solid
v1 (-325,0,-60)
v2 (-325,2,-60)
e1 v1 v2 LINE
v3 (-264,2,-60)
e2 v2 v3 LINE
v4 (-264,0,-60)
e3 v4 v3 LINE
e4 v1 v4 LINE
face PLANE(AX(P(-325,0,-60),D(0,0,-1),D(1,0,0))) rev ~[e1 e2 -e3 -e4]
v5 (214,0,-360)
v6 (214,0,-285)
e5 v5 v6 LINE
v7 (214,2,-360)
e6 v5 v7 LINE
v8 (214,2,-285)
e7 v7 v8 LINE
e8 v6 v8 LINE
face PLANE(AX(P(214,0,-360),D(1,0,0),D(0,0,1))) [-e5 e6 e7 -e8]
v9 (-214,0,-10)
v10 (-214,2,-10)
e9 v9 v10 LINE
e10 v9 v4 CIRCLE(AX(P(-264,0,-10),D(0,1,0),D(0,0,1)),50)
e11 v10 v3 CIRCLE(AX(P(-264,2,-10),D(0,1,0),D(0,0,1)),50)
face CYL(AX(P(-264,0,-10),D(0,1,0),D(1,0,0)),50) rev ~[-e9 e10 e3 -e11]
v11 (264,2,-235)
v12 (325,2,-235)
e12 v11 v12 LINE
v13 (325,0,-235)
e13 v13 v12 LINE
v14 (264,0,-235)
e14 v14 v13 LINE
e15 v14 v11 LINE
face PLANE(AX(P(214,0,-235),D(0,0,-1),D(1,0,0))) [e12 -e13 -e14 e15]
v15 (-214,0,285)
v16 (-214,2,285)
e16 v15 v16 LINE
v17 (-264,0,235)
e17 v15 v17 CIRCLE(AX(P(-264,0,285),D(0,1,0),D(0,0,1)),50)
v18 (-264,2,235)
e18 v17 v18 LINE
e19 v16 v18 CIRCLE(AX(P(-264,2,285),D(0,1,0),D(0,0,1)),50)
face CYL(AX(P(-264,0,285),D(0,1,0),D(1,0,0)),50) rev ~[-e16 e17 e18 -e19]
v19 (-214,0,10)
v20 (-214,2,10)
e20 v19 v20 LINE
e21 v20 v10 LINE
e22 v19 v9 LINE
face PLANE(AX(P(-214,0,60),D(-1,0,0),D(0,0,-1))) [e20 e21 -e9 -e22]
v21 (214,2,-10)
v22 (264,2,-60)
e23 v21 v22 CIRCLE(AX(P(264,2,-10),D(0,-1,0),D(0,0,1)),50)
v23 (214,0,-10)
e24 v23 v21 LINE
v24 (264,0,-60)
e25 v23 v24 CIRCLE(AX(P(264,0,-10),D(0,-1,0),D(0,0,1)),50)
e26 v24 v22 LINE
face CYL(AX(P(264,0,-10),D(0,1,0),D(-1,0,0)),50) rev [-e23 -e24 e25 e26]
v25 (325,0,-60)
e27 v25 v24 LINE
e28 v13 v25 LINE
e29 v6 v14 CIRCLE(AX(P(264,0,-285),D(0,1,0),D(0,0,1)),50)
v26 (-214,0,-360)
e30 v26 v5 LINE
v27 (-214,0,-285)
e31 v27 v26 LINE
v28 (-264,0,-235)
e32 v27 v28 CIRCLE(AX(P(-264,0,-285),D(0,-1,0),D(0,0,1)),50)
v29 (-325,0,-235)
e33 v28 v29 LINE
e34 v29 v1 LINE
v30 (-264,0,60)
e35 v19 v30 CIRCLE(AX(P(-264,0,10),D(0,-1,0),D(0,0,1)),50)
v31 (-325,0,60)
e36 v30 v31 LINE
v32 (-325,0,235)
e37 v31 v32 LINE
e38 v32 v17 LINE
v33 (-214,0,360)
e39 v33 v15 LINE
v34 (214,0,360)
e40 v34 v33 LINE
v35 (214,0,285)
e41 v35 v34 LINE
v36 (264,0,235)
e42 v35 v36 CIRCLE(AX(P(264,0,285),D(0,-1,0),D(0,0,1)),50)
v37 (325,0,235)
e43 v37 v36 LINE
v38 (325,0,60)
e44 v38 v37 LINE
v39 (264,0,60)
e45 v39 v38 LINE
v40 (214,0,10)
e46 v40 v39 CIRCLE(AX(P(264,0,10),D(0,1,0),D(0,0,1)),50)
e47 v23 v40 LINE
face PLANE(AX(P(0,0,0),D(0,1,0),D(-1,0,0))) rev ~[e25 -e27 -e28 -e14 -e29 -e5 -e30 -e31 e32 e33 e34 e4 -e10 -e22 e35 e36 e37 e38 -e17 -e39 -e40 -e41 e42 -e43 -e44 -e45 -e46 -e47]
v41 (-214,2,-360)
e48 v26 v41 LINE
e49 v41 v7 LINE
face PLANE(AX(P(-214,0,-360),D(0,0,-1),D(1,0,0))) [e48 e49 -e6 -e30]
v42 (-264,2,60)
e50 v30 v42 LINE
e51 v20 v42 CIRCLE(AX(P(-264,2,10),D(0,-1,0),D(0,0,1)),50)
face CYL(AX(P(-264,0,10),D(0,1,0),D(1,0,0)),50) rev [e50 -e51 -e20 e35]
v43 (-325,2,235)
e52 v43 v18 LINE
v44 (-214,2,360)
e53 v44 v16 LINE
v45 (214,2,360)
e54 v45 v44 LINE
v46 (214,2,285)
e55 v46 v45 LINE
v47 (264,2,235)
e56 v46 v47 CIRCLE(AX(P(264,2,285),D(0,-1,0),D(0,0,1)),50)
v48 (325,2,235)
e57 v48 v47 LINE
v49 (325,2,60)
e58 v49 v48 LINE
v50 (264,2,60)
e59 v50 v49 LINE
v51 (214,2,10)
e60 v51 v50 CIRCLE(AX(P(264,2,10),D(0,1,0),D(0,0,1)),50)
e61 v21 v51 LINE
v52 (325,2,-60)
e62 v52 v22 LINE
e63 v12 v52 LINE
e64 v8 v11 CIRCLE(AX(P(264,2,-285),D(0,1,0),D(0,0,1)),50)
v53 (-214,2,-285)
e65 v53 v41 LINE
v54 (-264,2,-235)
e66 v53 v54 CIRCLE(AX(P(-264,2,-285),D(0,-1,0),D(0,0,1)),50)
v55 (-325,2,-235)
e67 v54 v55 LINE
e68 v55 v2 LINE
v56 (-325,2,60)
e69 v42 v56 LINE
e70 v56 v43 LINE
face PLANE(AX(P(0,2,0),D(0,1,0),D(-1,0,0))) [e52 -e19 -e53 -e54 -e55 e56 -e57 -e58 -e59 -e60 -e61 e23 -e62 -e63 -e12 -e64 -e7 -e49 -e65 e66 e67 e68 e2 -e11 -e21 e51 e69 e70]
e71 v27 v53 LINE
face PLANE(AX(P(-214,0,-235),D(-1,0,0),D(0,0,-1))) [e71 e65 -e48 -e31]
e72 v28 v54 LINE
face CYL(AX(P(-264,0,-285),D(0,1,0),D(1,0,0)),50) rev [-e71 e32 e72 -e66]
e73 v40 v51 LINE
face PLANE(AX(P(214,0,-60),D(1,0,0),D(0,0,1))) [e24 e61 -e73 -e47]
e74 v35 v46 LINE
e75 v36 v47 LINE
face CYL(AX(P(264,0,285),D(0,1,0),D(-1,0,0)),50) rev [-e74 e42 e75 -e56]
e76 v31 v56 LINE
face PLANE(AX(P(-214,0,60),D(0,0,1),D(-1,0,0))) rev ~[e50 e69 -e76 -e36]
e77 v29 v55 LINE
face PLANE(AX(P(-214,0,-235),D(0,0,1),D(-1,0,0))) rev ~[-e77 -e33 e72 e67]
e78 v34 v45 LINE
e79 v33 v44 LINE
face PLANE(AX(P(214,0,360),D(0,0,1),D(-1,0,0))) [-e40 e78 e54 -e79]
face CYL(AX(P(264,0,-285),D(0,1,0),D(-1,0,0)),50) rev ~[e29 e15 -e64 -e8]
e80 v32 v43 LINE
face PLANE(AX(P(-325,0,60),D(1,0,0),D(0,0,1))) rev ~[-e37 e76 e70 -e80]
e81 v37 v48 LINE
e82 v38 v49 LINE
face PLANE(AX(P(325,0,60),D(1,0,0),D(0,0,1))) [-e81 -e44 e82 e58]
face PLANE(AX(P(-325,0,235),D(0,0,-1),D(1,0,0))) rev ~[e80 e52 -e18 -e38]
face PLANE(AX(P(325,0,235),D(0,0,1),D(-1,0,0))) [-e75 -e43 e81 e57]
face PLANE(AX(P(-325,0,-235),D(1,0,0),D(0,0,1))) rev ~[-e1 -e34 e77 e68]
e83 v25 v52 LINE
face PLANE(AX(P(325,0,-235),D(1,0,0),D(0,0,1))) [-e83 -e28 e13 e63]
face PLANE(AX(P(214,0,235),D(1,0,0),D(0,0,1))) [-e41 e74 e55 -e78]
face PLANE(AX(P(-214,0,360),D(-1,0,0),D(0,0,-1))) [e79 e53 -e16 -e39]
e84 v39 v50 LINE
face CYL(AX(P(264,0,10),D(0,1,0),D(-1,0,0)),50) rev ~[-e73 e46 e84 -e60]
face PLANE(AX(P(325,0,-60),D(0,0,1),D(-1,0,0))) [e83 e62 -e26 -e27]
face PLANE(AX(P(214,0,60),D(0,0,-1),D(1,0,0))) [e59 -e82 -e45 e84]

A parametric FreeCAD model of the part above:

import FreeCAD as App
import Part
import Sketcher
from FreeCAD import Vector


def edges_at(feature, points):
    """Names of the edges that pass closest to the given points."""
    edges = feature.Shape.Edges
    near = lambda p: min(range(len(edges)), key=lambda i: edges[i].distToShape(Part.Vertex(*p))[0])
    return sorted({f"Edge{near(p) + 1}" for p in points})

doc = App.newDocument("Part")
body = doc.addObject("PartDesign::Body", "Body")

# Sketch on XZ plane
sketch1 = body.newObject("Sketcher::SketchObject", "Sketch")
sketch1.AttachmentSupport = (doc.getObject("XZ_Plane"), [""])
sketch1.MapMode = "FlatFace"
sketch1.addGeometry([
    Part.LineSegment(Vector(-214, 360, 0), Vector(214, 360, 0)),  # 0
    Part.LineSegment(Vector(214, 360, 0), Vector(214, 235, 0)),  # 1
    Part.LineSegment(Vector(214, 235, 0), Vector(325, 235, 0)),  # 2
    Part.LineSegment(Vector(325, 235, 0), Vector(325, 60, 0)),  # 3
    Part.LineSegment(Vector(325, 60, 0), Vector(214, 60, 0)),  # 4
    Part.LineSegment(Vector(214, 60, 0), Vector(214, -60, 0)),  # 5
    Part.LineSegment(Vector(214, -60, 0), Vector(325, -60, 0)),  # 6
    Part.LineSegment(Vector(325, -60, 0), Vector(325, -235, 0)),  # 7
    Part.LineSegment(Vector(325, -235, 0), Vector(214, -235, 0)),  # 8
    Part.LineSegment(Vector(214, -235, 0), Vector(214, -360, 0)),  # 9
    Part.LineSegment(Vector(214, -360, 0), Vector(-214, -360, 0)),  # 10
    Part.LineSegment(Vector(-214, -360, 0), Vector(-214, -235, 0)),  # 11
    Part.LineSegment(Vector(-214, -235, 0), Vector(-325, -235, 0)),  # 12
    Part.LineSegment(Vector(-325, -235, 0), Vector(-325, -60, 0)),  # 13
    Part.LineSegment(Vector(-325, -60, 0), Vector(-214, -60, 0)),  # 14
    Part.LineSegment(Vector(-214, -60, 0), Vector(-214, 60, 0)),  # 15
    Part.LineSegment(Vector(-214, 60, 0), Vector(-325, 60, 0)),  # 16
    Part.LineSegment(Vector(-325, 60, 0), Vector(-325, 235, 0)),  # 17
    Part.LineSegment(Vector(-325, 235, 0), Vector(-214, 235, 0)),  # 18
    Part.LineSegment(Vector(-214, 235, 0), Vector(-214, 360, 0)),  # 19
], False)
sketch1.addConstraint([
    Sketcher.Constraint("Coincident", 0, 2, 1, 1),
    Sketcher.Constraint("Coincident", 1, 2, 2, 1),
    Sketcher.Constraint("Coincident", 2, 2, 3, 1),
    Sketcher.Constraint("Coincident", 3, 2, 4, 1),
    Sketcher.Constraint("Coincident", 4, 2, 5, 1),
    Sketcher.Constraint("Coincident", 5, 2, 6, 1),
    Sketcher.Constraint("Coincident", 6, 2, 7, 1),
    Sketcher.Constraint("Coincident", 7, 2, 8, 1),
    Sketcher.Constraint("Coincident", 8, 2, 9, 1),
    Sketcher.Constraint("Coincident", 9, 2, 10, 1),
    Sketcher.Constraint("Coincident", 10, 2, 11, 1),
    Sketcher.Constraint("Coincident", 11, 2, 12, 1),
    Sketcher.Constraint("Coincident", 12, 2, 13, 1),
    Sketcher.Constraint("Coincident", 13, 2, 14, 1),
    Sketcher.Constraint("Coincident", 14, 2, 15, 1),
    Sketcher.Constraint("Coincident", 15, 2, 16, 1),
    Sketcher.Constraint("Coincident", 16, 2, 17, 1),
    Sketcher.Constraint("Coincident", 17, 2, 18, 1),
    Sketcher.Constraint("Coincident", 18, 2, 19, 1),
    Sketcher.Constraint("Coincident", 19, 2, 0, 1),
    Sketcher.Constraint("Horizontal", 0),
    Sketcher.Constraint("Vertical", 1),
    Sketcher.Constraint("Horizontal", 2),
    Sketcher.Constraint("Vertical", 3),
    Sketcher.Constraint("Horizontal", 4),
    Sketcher.Constraint("Vertical", 5),
    Sketcher.Constraint("Horizontal", 6),
    Sketcher.Constraint("Vertical", 7),
    Sketcher.Constraint("Horizontal", 8),
    Sketcher.Constraint("Vertical", 9),
    Sketcher.Constraint("Horizontal", 10),
    Sketcher.Constraint("Vertical", 11),
    Sketcher.Constraint("Horizontal", 12),
    Sketcher.Constraint("Vertical", 13),
    Sketcher.Constraint("Horizontal", 14),
    Sketcher.Constraint("Vertical", 15),
    Sketcher.Constraint("Horizontal", 16),
    Sketcher.Constraint("Vertical", 17),
    Sketcher.Constraint("Horizontal", 18),
    Sketcher.Constraint("Vertical", 19),
    Sketcher.Constraint("Symmetric", 0, 2, 10, 2, -1, 1),
    Sketcher.Constraint("Symmetric", 2, 2, 12, 2, -1, 1),
    Sketcher.Constraint("Symmetric", 4, 2, 14, 2, -1, 1),
    Sketcher.Constraint("Symmetric", 6, 2, 16, 2, -1, 1),
    Sketcher.Constraint("Symmetric", 8, 2, 18, 2, -1, 1),
    Sketcher.Constraint("Symmetric", 8, 2, 11, 2, -2),
    Sketcher.Constraint("Symmetric", 6, 2, 13, 2, -2),
    Sketcher.Constraint("Vertical", 1, 2, 4, 2),
    Sketcher.Constraint("DistanceX", 0, 1, 0, 2, 428.0),
    Sketcher.Constraint("DistanceX", 2, 1, 2, 2, 111.0),
    Sketcher.Constraint("DistanceY", 1, 2, 1, 1, 125.0),
    Sketcher.Constraint("DistanceY", 3, 2, 3, 1, 175.0),
    Sketcher.Constraint("DistanceY", 5, 2, 5, 1, 120.0),
])
pad1 = body.newObject("PartDesign::Pad", "Pad")
pad1.Profile = sketch1
pad1.Length = 2
pad1.Reversed = True
doc.recompute()

fillet = body.newObject("PartDesign::Fillet", "Fillet")
fillet.Base = (pad1, edges_at(pad1, [
    (214, 1, -235),
    (214, 1, -60),
    (214, 1, 60),
    (214, 1, 235),
    (-214, 1, 60),
    (-214, 1, -60),
    (-214, 1, -235),
    (-214, 1, 235),
]))
fillet.Radius = 50

doc.recompute()
